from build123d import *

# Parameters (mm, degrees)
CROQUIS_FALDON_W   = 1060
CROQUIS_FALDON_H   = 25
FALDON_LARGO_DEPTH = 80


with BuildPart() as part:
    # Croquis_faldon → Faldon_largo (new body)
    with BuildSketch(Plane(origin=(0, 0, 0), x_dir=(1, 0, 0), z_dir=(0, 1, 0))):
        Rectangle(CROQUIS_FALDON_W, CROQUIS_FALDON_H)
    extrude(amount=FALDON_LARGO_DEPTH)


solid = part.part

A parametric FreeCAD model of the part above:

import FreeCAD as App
import Part
import Sketcher
from FreeCAD import Vector


def add_polygon(sketch, points):
    """Adds a closed chain of lines whose ends are joined by coincident constraints."""
    first, n = sketch.GeometryCount, len(points)
    for a, b in zip(points, points[1:] + points[:1]):
        sketch.addGeometry(Part.LineSegment(App.Vector(*a, 0), App.Vector(*b, 0)), False)
    for i in range(n):
        sketch.addConstraint(Sketcher.Constraint("Coincident", first + i, 2, first + (i + 1) % n, 1))

doc = App.newDocument("Part")
params = doc.addObject("Spreadsheet::Sheet", "Params")
for row, (alias, value) in enumerate([
    ("sketch1_width", "1060 mm"),
    ("sketch1_height", "25 mm"),
    ("pad1_length", "80 mm"),
], start=1):
    params.set(f"A{row}", alias)
    params.set(f"B{row}", "=" + value)
    params.setAlias(f"B{row}", alias)

body = doc.addObject("PartDesign::Body", "Body")

sketch1 = body.newObject("Sketcher::SketchObject", "Sketch")
sketch1.AttachmentSupport = (doc.getObject("XZ_Plane"), [""])
sketch1.MapMode = "FlatFace"
add_polygon(sketch1, [(-530, -12), (-530, 12), (530, 12), (530, -12)])
sketch1.addConstraint(Sketcher.Constraint("Vertical", 0))
sketch1.addConstraint(Sketcher.Constraint("Horizontal", 1))
sketch1.addConstraint(Sketcher.Constraint("Vertical", 2))
sketch1.addConstraint(Sketcher.Constraint("Horizontal", 3))
sketch1.addConstraint(Sketcher.Constraint("Symmetric", 0, 2, 2, 2, -1, 1))
sketch1.addConstraint(Sketcher.Constraint("DistanceX", 1, 1, 1, 2, 1060.0))
sketch1.addConstraint(Sketcher.Constraint("DistanceY", 0, 1, 0, 2, 25.0))
sketch1.setExpression("Constraints[9]", "Params.sketch1_width")
sketch1.setExpression("Constraints[10]", "Params.sketch1_height")
pad1 = body.newObject("PartDesign::Pad", "Pad")
pad1.Profile = sketch1
pad1.setExpression("Length", "Params.pad1_length")
pad1.Reversed = True

doc.recompute()
